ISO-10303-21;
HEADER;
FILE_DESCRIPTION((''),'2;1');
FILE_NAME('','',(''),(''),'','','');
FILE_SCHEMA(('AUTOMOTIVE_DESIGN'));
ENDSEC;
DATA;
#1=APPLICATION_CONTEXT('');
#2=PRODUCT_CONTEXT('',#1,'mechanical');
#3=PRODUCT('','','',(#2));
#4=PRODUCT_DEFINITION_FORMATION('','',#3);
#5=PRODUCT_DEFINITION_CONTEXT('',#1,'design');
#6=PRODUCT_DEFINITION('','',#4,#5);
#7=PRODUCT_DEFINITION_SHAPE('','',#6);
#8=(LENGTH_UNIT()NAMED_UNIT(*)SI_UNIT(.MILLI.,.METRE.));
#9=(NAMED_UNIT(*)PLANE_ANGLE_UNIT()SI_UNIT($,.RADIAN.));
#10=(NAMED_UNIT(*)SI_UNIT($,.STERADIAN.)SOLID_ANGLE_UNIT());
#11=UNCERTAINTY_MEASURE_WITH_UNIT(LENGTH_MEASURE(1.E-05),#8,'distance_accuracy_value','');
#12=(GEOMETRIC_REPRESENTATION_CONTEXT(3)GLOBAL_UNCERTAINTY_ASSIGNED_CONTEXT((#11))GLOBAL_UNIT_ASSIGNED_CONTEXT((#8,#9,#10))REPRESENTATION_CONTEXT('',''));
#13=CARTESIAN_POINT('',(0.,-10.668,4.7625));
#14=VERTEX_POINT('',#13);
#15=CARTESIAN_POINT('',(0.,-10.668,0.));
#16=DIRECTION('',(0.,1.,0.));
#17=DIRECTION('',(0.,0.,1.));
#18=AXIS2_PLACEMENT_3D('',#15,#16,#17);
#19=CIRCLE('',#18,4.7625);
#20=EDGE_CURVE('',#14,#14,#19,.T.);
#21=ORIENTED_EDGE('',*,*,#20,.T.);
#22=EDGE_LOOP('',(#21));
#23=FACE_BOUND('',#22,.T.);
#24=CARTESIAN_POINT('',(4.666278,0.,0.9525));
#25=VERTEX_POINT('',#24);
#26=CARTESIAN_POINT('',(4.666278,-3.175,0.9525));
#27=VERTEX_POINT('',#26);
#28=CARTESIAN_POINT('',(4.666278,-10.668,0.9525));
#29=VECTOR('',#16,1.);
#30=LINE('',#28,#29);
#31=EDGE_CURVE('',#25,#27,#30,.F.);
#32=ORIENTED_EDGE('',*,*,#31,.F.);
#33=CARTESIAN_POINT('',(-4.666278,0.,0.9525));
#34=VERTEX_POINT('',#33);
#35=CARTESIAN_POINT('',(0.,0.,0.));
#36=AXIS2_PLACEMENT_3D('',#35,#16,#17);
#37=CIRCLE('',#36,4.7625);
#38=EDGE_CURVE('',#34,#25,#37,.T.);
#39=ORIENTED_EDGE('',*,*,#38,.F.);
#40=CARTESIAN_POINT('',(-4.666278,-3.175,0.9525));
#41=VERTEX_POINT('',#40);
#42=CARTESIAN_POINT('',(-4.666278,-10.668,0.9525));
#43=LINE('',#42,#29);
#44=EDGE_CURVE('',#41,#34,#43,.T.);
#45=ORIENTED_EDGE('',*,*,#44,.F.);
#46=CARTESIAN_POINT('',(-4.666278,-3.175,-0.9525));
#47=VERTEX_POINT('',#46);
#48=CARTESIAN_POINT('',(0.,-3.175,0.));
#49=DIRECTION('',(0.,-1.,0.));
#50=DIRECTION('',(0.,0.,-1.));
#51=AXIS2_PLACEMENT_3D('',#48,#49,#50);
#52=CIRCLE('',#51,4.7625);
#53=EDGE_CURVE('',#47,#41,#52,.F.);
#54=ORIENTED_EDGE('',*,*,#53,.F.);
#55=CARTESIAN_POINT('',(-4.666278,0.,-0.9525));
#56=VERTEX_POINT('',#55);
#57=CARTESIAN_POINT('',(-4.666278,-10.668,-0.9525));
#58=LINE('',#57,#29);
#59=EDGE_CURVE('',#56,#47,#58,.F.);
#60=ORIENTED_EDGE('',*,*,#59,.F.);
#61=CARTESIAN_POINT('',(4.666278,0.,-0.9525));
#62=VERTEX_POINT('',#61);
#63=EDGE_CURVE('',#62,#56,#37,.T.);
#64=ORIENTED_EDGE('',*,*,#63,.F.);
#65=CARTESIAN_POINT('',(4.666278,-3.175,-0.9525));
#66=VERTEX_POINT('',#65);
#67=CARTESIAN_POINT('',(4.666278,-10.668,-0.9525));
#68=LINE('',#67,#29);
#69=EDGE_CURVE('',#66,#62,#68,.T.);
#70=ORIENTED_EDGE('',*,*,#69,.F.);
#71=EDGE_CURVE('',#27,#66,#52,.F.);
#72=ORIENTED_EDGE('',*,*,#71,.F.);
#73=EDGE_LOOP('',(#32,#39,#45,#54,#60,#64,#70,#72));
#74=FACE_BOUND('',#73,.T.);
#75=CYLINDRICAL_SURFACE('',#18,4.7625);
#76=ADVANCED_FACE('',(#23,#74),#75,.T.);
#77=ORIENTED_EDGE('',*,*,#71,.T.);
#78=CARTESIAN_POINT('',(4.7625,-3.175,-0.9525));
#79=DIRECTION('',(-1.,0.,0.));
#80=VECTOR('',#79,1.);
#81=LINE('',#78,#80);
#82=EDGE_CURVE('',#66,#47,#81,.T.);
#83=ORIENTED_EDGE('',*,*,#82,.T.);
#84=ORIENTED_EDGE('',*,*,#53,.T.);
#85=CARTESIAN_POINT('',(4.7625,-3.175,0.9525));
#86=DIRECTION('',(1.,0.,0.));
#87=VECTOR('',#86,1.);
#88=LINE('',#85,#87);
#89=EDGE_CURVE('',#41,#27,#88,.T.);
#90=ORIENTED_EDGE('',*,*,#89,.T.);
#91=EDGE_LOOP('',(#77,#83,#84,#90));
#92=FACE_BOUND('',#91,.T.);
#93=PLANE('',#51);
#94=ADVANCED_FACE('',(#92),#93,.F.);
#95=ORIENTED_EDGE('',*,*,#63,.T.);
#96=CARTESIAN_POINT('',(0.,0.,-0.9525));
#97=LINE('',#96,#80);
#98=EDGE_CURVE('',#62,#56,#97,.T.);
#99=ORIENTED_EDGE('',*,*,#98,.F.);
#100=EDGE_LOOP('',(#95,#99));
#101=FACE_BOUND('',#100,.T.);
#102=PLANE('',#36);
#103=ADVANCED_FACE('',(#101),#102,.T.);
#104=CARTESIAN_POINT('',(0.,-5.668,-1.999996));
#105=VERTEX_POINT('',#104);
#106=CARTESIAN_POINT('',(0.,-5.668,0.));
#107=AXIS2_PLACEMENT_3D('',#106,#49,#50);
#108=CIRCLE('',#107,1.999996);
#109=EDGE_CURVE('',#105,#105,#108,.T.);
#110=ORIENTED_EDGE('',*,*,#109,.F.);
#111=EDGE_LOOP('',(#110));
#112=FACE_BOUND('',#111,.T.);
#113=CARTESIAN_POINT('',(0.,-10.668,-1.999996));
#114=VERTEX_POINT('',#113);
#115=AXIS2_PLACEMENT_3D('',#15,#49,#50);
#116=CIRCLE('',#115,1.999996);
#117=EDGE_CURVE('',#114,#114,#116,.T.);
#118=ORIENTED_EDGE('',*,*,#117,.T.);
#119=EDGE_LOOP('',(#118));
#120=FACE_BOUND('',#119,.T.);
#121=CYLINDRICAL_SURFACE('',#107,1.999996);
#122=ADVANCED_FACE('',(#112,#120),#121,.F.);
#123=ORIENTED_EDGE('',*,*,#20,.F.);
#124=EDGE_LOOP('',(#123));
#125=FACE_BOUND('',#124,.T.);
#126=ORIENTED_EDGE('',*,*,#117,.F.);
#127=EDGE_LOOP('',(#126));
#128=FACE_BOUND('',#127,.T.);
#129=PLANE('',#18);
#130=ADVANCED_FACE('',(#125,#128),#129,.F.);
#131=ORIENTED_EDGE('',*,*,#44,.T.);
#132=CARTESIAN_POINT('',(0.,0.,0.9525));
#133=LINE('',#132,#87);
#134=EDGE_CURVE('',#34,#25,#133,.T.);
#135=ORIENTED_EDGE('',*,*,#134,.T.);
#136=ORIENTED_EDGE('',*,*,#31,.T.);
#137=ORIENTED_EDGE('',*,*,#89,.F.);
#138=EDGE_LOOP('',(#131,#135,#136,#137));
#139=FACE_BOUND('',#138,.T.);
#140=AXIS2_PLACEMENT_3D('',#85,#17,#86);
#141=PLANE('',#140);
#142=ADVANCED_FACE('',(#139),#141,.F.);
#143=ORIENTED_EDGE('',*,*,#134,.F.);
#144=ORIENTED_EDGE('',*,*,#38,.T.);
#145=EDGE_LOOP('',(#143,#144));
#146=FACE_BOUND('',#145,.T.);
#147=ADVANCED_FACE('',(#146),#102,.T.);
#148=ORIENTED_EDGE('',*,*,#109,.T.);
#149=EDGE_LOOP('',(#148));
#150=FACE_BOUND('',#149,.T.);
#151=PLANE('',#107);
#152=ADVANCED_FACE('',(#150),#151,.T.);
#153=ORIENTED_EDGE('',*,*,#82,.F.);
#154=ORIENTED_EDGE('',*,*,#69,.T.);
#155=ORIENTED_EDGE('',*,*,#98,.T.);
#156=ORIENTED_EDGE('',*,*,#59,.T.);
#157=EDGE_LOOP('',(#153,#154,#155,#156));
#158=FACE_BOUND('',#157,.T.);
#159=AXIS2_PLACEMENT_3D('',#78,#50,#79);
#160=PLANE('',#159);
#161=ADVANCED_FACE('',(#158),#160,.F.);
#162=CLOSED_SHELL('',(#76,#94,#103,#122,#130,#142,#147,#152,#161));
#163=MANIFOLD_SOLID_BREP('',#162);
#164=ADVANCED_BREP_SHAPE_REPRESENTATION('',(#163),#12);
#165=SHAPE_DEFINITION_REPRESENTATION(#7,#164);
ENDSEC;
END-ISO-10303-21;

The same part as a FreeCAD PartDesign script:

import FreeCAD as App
import Part
import Sketcher
Q = App.Units.Quantity

doc = App.newDocument("Part")
body = doc.addObject("PartDesign::Body", "Body")

# Sketch on XZ plane
sketch1 = body.newObject("Sketcher::SketchObject", "Sketch")
sketch1.AttachmentSupport = (doc.getObject("XZ_Plane"), [""])
sketch1.MapMode = "FlatFace"
sketch1.addGeometry(Part.Circle(App.Vector(0, 0, 0), App.Vector(0, 0, 1), 4.8), False)
sketch1.addConstraint([
    Sketcher.Constraint("Coincident", 0, 3, -1, 1),
    Sketcher.Constraint("Diameter", 0, Q("0.375 in")),
])
pad1 = body.newObject("PartDesign::Pad", "Pad")
pad1.Profile = sketch1
pad1.Length = Q("0.42 in")

# Sketch on XZ plane
sketch2 = body.newObject("Sketcher::SketchObject", "Sketch001")
sketch2.AttachmentSupport = (doc.getObject("XZ_Plane"), [""])
sketch2.MapMode = "FlatFace"
sketch2.addGeometry([
    Part.LineSegment(App.Vector(-4.8, -1, 0), App.Vector(-4.8, 1, 0)),
    Part.LineSegment(App.Vector(-4.8, 1, 0), App.Vector(4.8, 1, 0)),
    Part.LineSegment(App.Vector(4.8, 1, 0), App.Vector(4.8, -1, 0)),
    Part.LineSegment(App.Vector(4.8, -1, 0), App.Vector(-4.8, -1, 0)),
], False)
sketch2.addConstraint([
    Sketcher.Constraint("Coincident", 0, 2, 1, 1),
    Sketcher.Constraint("Coincident", 1, 2, 2, 1),
    Sketcher.Constraint("Coincident", 2, 2, 3, 1),
    Sketcher.Constraint("Coincident", 3, 2, 0, 1),
    Sketcher.Constraint("Vertical", 0),
    Sketcher.Constraint("Horizontal", 1),
    Sketcher.Constraint("Vertical", 2),
    Sketcher.Constraint("Horizontal", 3),
    Sketcher.Constraint("Symmetric", 0, 2, 2, 2, -1, 1),
    Sketcher.Constraint("DistanceX", 1, 1, 1, 2, Q("0.375 in")),
    Sketcher.Constraint("DistanceY", 0, 1, 0, 2, Q("0.075 in")),
])
pocket1 = body.newObject("PartDesign::Pocket", "Pocket")
pocket1.Profile = sketch2
pocket1.Length = Q("0.125 in")
pocket1.Reversed = True

# Sketch on XZ plane
sketch3 = body.newObject("Sketcher::SketchObject", "Sketch002")
sketch3.AttachmentSupport = (doc.getObject("XZ_Plane"), [""])
sketch3.MapMode = "FlatFace"
sketch3.AttachmentOffset = App.Placement(App.Vector(0, 0, 0.42 * 25.4), App.Rotation())
sketch3.addGeometry(Part.Circle(App.Vector(0, 0, 0), App.Vector(0, 0, 1), 2), False)
sketch3.addConstraint([
    Sketcher.Constraint("Coincident", 0, 3, -1, 1),
    Sketcher.Constraint("Diameter", 0, 3.999992),
])
pocket2 = body.newObject("PartDesign::Pocket", "Pocket001")
pocket2.Profile = sketch3
pocket2.Length = 5

doc.recompute()
